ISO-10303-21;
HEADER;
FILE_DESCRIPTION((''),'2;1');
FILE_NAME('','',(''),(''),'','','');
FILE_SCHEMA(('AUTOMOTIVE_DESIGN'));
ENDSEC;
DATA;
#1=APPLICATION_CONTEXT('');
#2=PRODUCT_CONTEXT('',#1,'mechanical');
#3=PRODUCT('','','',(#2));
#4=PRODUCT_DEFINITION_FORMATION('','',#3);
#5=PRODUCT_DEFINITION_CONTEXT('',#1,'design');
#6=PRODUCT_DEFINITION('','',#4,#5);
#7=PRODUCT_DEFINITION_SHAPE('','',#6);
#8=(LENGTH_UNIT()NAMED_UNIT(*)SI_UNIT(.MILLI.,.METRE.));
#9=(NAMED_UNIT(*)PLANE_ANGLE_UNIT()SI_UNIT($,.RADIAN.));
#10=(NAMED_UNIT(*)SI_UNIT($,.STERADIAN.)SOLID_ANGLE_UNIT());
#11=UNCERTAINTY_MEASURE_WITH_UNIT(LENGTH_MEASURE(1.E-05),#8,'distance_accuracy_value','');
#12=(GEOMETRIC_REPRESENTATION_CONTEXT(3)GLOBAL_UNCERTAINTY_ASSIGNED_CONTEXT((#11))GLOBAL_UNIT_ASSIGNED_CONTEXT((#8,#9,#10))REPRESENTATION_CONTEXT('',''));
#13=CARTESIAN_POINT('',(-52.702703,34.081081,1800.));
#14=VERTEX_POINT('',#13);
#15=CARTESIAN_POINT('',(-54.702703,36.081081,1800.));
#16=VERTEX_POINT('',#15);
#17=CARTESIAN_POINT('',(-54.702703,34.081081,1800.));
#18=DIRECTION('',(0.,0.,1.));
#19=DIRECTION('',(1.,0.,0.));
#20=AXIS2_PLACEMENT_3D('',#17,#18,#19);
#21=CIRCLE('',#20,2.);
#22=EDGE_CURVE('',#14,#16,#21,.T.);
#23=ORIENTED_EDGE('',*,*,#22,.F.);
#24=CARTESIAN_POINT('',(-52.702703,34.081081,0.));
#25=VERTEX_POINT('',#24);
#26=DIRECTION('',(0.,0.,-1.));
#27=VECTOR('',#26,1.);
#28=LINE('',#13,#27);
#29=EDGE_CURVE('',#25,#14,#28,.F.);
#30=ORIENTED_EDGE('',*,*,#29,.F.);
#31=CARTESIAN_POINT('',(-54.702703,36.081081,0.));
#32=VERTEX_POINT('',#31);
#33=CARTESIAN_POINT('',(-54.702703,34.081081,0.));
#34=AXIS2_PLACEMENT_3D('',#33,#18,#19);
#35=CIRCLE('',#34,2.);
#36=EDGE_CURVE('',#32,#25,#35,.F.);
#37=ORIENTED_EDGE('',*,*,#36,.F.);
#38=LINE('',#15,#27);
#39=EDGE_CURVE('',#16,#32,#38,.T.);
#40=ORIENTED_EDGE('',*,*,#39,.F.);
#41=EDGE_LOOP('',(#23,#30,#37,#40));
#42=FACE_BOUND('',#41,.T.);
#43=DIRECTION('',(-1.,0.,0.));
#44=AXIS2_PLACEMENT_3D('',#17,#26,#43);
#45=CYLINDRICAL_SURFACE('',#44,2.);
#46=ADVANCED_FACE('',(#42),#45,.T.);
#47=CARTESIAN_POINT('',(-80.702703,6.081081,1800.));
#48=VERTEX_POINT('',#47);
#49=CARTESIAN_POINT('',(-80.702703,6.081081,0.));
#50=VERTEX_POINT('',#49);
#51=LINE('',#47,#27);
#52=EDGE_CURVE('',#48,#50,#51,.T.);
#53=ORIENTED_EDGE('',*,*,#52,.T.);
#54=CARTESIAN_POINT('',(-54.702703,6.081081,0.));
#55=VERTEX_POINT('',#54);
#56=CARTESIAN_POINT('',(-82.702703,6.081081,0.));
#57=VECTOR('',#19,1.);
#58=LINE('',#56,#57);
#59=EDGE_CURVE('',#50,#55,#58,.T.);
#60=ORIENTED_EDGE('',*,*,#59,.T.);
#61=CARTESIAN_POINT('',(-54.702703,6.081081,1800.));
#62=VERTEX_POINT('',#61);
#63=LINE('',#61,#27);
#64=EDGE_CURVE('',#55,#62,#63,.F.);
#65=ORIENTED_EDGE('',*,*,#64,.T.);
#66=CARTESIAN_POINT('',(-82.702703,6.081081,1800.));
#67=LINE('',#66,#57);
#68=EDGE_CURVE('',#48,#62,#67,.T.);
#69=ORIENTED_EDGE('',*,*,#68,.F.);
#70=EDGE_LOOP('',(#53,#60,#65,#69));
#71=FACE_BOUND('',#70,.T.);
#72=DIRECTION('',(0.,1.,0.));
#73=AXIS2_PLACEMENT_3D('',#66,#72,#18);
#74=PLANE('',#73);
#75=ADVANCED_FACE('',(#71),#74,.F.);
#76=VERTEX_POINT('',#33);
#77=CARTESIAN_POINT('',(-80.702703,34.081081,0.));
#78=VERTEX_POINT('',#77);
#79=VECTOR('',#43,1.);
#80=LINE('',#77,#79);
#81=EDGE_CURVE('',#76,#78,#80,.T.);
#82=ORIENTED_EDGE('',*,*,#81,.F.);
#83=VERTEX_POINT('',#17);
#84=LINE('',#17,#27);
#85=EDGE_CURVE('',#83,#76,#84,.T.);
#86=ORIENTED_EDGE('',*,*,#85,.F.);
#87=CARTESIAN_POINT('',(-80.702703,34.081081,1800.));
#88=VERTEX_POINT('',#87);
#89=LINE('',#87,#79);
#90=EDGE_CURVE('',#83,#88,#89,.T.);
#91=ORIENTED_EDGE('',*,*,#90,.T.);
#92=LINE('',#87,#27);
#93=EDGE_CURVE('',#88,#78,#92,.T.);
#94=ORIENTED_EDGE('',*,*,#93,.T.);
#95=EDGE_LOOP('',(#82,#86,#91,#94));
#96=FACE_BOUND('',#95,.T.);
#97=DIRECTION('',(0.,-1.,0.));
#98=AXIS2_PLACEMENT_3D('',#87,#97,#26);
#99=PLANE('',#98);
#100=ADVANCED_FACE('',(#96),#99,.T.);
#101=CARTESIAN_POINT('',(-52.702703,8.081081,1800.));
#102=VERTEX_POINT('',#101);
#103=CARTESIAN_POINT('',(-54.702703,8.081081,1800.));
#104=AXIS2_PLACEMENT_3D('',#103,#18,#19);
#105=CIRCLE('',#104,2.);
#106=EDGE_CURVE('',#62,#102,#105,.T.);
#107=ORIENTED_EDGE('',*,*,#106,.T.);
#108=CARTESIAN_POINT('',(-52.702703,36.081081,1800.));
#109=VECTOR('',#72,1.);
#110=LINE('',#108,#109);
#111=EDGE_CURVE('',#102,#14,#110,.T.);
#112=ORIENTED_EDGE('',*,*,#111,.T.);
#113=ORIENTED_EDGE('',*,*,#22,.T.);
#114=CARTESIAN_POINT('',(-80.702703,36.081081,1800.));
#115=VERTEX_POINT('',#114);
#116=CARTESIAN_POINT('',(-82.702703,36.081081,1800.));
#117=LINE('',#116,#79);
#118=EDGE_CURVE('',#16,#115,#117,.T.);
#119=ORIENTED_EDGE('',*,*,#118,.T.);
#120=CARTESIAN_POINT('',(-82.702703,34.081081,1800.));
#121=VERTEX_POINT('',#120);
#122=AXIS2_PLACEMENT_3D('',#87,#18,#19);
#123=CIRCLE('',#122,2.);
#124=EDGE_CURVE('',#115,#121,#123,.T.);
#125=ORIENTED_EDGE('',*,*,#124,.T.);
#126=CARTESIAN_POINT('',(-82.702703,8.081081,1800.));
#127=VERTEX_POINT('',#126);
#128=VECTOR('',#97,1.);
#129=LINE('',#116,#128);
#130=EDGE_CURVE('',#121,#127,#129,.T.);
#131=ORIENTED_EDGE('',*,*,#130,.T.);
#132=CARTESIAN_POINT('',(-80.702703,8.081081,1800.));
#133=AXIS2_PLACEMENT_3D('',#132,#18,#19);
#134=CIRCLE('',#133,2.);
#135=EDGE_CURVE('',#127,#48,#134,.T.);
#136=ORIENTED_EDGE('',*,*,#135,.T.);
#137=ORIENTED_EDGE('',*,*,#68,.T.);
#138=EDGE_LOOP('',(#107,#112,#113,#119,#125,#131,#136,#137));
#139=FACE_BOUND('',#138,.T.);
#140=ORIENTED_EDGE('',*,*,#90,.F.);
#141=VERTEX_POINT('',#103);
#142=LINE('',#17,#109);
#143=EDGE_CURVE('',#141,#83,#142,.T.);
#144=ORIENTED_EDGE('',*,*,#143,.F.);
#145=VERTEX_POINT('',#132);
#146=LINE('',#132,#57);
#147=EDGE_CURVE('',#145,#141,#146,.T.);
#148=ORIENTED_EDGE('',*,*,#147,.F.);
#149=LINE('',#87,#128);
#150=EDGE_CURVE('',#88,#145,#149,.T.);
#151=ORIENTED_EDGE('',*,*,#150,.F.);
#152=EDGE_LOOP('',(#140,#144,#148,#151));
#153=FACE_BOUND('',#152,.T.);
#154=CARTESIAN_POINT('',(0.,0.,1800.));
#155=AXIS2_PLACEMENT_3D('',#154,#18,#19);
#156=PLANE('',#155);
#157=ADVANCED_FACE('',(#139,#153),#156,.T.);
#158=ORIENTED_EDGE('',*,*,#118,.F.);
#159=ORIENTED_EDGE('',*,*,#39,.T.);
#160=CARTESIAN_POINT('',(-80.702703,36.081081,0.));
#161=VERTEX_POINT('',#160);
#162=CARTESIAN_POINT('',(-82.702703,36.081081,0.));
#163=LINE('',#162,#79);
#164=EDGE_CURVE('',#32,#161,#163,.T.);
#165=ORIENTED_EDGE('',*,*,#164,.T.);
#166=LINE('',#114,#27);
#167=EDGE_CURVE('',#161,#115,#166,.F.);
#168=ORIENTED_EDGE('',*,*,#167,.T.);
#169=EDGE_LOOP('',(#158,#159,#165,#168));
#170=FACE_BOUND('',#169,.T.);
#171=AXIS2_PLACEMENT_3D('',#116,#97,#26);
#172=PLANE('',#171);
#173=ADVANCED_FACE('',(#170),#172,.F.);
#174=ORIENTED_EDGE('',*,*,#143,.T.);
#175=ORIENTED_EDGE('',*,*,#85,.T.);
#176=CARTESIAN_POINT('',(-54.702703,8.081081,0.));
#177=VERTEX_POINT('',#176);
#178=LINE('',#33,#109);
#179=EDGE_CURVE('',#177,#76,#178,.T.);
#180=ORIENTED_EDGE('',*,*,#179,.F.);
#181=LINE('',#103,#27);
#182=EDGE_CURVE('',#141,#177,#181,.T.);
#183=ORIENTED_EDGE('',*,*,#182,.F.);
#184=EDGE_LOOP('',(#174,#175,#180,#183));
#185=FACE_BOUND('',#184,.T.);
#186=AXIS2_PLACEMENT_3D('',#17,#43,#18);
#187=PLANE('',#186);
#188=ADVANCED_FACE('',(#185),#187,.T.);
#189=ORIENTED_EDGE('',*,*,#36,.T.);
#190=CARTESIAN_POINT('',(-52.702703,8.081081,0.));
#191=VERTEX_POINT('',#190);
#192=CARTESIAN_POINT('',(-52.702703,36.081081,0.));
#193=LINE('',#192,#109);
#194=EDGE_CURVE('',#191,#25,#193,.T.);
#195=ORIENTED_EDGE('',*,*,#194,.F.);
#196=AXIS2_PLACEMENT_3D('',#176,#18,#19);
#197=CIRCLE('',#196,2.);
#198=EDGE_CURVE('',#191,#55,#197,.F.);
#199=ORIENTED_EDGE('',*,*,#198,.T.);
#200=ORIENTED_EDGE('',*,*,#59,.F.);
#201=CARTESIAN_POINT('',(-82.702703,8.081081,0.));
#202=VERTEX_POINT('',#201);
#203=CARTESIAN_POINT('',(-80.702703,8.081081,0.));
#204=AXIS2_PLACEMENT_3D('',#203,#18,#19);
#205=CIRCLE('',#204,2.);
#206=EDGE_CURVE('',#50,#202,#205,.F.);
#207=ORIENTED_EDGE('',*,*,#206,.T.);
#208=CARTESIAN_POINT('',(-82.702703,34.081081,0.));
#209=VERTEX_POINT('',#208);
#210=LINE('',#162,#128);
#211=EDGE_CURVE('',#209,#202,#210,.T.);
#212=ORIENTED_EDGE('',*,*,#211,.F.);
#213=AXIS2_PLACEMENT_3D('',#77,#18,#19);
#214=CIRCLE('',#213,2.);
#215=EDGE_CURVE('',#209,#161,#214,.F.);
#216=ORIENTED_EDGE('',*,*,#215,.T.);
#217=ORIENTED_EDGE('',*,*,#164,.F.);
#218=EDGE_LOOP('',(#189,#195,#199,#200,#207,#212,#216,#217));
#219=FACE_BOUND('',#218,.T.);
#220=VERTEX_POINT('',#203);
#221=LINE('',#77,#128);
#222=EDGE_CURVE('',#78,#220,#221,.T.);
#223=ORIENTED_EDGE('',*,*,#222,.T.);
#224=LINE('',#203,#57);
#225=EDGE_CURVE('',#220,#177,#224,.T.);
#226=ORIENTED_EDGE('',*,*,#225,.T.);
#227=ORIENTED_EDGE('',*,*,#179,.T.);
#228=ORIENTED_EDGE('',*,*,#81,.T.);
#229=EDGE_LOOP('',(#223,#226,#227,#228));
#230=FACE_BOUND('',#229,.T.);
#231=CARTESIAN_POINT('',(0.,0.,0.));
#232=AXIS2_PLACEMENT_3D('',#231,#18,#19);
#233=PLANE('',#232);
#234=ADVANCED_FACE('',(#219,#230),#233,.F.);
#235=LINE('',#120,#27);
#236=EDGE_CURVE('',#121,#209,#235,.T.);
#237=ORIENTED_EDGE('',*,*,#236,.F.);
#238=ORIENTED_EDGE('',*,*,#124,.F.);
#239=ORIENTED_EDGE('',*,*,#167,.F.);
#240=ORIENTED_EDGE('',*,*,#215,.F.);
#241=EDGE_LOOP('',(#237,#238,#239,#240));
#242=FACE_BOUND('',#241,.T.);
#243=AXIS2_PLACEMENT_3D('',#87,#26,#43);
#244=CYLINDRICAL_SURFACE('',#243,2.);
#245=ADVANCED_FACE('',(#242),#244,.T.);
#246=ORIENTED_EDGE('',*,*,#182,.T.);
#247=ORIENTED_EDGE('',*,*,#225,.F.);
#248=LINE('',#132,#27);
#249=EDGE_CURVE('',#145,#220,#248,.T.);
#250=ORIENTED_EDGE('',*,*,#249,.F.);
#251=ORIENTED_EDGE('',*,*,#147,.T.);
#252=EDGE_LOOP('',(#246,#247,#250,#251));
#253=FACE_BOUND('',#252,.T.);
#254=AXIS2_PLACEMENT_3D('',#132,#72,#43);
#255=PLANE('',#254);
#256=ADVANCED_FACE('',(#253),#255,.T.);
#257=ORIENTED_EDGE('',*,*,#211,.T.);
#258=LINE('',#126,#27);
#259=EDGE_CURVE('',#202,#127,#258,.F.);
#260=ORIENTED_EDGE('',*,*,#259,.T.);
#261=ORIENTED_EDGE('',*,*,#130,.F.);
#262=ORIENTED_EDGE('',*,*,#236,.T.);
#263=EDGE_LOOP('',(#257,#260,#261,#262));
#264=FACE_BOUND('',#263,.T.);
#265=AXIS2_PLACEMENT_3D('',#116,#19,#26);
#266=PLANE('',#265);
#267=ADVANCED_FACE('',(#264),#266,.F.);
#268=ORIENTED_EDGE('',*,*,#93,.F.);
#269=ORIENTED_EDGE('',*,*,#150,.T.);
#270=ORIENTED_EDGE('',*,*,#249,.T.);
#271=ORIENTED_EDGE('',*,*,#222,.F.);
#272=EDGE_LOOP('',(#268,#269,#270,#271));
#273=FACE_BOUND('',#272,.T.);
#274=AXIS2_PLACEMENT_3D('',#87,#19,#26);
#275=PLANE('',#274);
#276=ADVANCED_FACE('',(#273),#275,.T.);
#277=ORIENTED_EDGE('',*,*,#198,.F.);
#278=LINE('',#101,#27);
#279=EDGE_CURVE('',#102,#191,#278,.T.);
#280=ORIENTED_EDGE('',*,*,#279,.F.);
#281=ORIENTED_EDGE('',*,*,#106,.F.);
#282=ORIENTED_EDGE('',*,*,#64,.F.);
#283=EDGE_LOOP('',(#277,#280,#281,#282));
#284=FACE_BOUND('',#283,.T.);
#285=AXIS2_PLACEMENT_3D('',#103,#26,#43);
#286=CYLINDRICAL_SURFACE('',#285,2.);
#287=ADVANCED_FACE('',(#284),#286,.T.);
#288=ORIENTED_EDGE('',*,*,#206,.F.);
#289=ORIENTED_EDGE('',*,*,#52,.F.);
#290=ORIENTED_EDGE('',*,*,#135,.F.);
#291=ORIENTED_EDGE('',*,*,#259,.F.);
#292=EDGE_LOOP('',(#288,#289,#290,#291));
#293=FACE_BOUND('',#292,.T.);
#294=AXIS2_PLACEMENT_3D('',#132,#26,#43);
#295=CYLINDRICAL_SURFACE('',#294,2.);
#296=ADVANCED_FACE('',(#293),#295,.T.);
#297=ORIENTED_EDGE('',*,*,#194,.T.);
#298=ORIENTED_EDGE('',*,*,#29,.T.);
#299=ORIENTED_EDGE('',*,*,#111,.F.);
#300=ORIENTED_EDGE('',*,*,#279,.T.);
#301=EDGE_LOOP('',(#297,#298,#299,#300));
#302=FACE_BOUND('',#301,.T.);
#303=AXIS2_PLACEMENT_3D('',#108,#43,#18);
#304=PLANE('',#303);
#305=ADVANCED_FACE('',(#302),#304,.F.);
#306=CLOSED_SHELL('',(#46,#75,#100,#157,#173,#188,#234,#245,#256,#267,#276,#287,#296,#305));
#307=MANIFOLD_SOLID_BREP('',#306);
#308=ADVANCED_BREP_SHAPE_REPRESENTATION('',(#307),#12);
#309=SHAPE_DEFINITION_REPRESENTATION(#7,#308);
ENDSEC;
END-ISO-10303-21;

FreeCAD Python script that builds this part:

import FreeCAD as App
import Part
import Sketcher


def edges_at(feature, points):
    """Names of the edges that pass closest to the given points."""
    edges = feature.Shape.Edges
    near = lambda p: min(range(len(edges)), key=lambda i: edges[i].distToShape(Part.Vertex(*p))[0])
    return sorted({f"Edge{near(p) + 1}" for p in points})


def add_polygon(sketch, points):
    """Adds a closed chain of lines whose ends are joined by coincident constraints."""
    first, n = sketch.GeometryCount, len(points)
    for a, b in zip(points, points[1:] + points[:1]):
        sketch.addGeometry(Part.LineSegment(App.Vector(*a, 0), App.Vector(*b, 0)), False)
    for i in range(n):
        sketch.addConstraint(Sketcher.Constraint("Coincident", first + i, 2, first + (i + 1) % n, 1))

doc = App.newDocument("Part")
body = doc.addObject("PartDesign::Body", "Body")

# Sketch on XY plane
sketch1 = body.newObject("Sketcher::SketchObject", "Sketch")
sketch1.AttachmentSupport = (doc.getObject("XY_Plane"), [""])
sketch1.MapMode = "FlatFace"
add_polygon(sketch1, [(-82.702703, 36.081081), (-82.702703, 6.081081), (-52.702703, 6.081081), (-52.702703, 36.081081)])  # lines 0-3
add_polygon(sketch1, [(-54.702703, 8.081081), (-80.702703, 8.081081), (-80.702703, 34.081081), (-54.702703, 34.081081)])  # lines 4-7
sketch1.addConstraint([
    Sketcher.Constraint("Vertical", 0),
    Sketcher.Constraint("Horizontal", 1),
    Sketcher.Constraint("Vertical", 2),
    Sketcher.Constraint("Horizontal", 3),
    Sketcher.Constraint("Horizontal", 4),
    Sketcher.Constraint("Vertical", 5),
    Sketcher.Constraint("Horizontal", 6),
    Sketcher.Constraint("Vertical", 7),
    Sketcher.Constraint("Equal", 3, 0),
    Sketcher.Constraint("Equal", 6, 5),
    Sketcher.Constraint("DistanceX", 1, 1, 1, 2, 30.0),
    Sketcher.Constraint("DistanceX", 4, 2, 4, 1, 26.0),
    Sketcher.Constraint("DistanceX", 0, 2, 4, 2, 2.0),
    Sketcher.Constraint("DistanceY", 0, 2, 4, 2, 2.0),
    Sketcher.Constraint("DistanceY", -1, 1, 0, 2, 6.081081),
    Sketcher.Constraint("DistanceX", 0, 2, -1, 1, 82.702703),
])
pad1 = body.newObject("PartDesign::Pad", "Pad")
pad1.Profile = sketch1
pad1.Length = 1800
doc.recompute()

fillet = body.newObject("PartDesign::Fillet", "Fillet")
fillet.Base = (pad1, edges_at(pad1, [
    (-82.703, 36.081, 900),
    (-52.703, 36.081, 900),
    (-52.703, 6.081, 900),
    (-82.703, 6.081, 900),
]))
fillet.Radius = 2

doc.recompute()
